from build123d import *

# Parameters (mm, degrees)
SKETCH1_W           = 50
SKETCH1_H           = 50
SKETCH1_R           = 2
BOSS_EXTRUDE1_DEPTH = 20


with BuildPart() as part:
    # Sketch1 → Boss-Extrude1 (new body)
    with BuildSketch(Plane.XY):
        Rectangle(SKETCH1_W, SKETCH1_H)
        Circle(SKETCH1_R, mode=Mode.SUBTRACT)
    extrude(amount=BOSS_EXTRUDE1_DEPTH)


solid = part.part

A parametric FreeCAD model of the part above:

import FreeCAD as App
import Part
import Sketcher
Q = App.Units.Quantity

doc = App.newDocument("Part")
body = doc.addObject("PartDesign::Body", "Body")

sketch1 = body.newObject("Sketcher::SketchObject", "Sketch")
sketch1.AttachmentSupport = (doc.getObject("XY_Plane"), [""])
sketch1.MapMode = "FlatFace"
sketch1.addGeometry(Part.LineSegment(App.Vector(-25, 25, 0), App.Vector(-25, -25, 0)), False)
sketch1.addGeometry(Part.LineSegment(App.Vector(-25, -25, 0), App.Vector(25, -25, 0)), False)
sketch1.addGeometry(Part.LineSegment(App.Vector(25, -25, 0), App.Vector(25, 25, 0)), False)
sketch1.addGeometry(Part.LineSegment(App.Vector(25, 25, 0), App.Vector(-25, 25, 0)), False)
sketch1.addGeometry(Part.Circle(App.Vector(0, 0, 0), App.Vector(0, 0, 1), 2), False)
sketch1.addConstraint(Sketcher.Constraint("Coincident", 0, 2, 1, 1))
sketch1.addConstraint(Sketcher.Constraint("Coincident", 1, 2, 2, 1))
sketch1.addConstraint(Sketcher.Constraint("Coincident", 2, 2, 3, 1))
sketch1.addConstraint(Sketcher.Constraint("Coincident", 3, 2, 0, 1))
sketch1.addConstraint(Sketcher.Constraint("Vertical", 0))
sketch1.addConstraint(Sketcher.Constraint("Horizontal", 1))
sketch1.addConstraint(Sketcher.Constraint("Vertical", 2))
sketch1.addConstraint(Sketcher.Constraint("Horizontal", 3))
sketch1.addConstraint(Sketcher.Constraint("Coincident", 4, 3, -1, 1))
sketch1.addConstraint(Sketcher.Constraint("Symmetric", 0, 2, 2, 2, -1, 1))
sketch1.addConstraint(Sketcher.Constraint("Equal", 3, 0))
sketch1.addConstraint(Sketcher.Constraint("Diameter", 4, Q("4 mm")))
sketch1.addConstraint(Sketcher.Constraint("DistanceX", 1, 1, 1, 2, Q("50 mm")))
pad1 = body.newObject("PartDesign::Pad", "Pad")
pad1.Profile = sketch1
pad1.Length = 20

doc.recompute()
